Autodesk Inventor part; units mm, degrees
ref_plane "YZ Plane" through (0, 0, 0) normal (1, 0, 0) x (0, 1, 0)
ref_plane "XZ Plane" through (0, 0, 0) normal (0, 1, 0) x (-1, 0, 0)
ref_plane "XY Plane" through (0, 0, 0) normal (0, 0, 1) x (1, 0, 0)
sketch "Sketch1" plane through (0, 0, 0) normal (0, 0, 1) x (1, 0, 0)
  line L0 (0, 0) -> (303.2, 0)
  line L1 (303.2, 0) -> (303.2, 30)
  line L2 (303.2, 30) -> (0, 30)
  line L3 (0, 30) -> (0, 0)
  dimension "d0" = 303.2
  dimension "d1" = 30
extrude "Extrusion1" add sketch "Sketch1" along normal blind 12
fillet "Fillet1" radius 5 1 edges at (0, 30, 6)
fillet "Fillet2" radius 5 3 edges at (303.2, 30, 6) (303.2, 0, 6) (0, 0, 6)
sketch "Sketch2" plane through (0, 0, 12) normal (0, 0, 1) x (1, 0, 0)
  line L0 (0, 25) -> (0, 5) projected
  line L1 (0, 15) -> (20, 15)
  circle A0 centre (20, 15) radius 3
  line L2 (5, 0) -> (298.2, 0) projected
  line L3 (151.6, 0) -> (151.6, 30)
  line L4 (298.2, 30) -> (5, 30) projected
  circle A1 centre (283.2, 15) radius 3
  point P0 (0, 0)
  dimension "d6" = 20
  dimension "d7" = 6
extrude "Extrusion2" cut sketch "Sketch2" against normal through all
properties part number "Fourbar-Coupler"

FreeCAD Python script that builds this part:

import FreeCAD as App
import Part
import Sketcher
from FreeCAD import Vector
Q = App.Units.Quantity


def edges_at(feature, points):
    """Names of the edges that pass closest to the given points."""
    edges = feature.Shape.Edges
    near = lambda p: min(range(len(edges)), key=lambda i: edges[i].distToShape(Part.Vertex(*p))[0])
    return sorted({f"Edge{near(p) + 1}" for p in points})

doc = App.newDocument("Part")
params = doc.addObject("Spreadsheet::Sheet", "Params")
for row, (alias, value) in enumerate([
    ("sketch1_height", "30 mm"),
    ("sketch1_width", "303.2 mm"),
    ("pad1_length", "12 mm"),
    ("fillet_radius", "5 mm"),
    ("fillet2_radius", "5 mm"),
    ("sketch2_diameter", "6 mm"),
], start=1):
    params.set(f"A{row}", alias)
    params.set(f"B{row}", "=" + value)
    params.setAlias(f"B{row}", alias)

body = doc.addObject("PartDesign::Body", "Body")

# Sketch on XY plane
sketch1 = body.newObject("Sketcher::SketchObject", "Sketch")
sketch1.AttachmentSupport = (doc.getObject("XY_Plane"), [""])
sketch1.MapMode = "FlatFace"
sketch1.addGeometry([
    Part.LineSegment(Vector(0, 30, 0), Vector(0, 0, 0)),
    Part.LineSegment(Vector(0, 0, 0), Vector(303, 0, 0)),
    Part.LineSegment(Vector(303, 0, 0), Vector(303, 30, 0)),
    Part.LineSegment(Vector(303, 30, 0), Vector(0, 30, 0)),
], False)
sketch1.addConstraint([
    Sketcher.Constraint("Coincident", 0, 2, 1, 1),
    Sketcher.Constraint("Coincident", 1, 2, 2, 1),
    Sketcher.Constraint("Coincident", 2, 2, 3, 1),
    Sketcher.Constraint("Coincident", 3, 2, 0, 1),
    Sketcher.Constraint("Vertical", 0),
    Sketcher.Constraint("Horizontal", 1),
    Sketcher.Constraint("Vertical", 2),
    Sketcher.Constraint("Horizontal", 3),
    Sketcher.Constraint("Coincident", 0, 2, -1, 1),
    Sketcher.Constraint("DistanceY", 0, 2, 0, 1, Q("30 mm")),
    Sketcher.Constraint("DistanceX", 1, 1, 1, 2, Q("303.2 mm")),
])
sketch1.setExpression("Constraints[9]", "Params.sketch1_height")
sketch1.setExpression("Constraints[10]", "Params.sketch1_width")
pad1 = body.newObject("PartDesign::Pad", "Pad")
pad1.Profile = sketch1
pad1.setExpression("Length", "Params.pad1_length")
doc.recompute()

fillet = body.newObject("PartDesign::Fillet", "Fillet")
fillet.Base = (pad1, edges_at(pad1, [(0, 30, 6)]))
fillet.setExpression("Radius", "Params.fillet_radius")
doc.recompute()

fillet2 = body.newObject("PartDesign::Fillet", "Fillet001")
fillet2.Base = (fillet, edges_at(fillet, [(303.2, 30, 6), (303.2, 0, 6), (0, 0, 6)]))
fillet2.setExpression("Radius", "Params.fillet2_radius")

# Sketch on XY plane
sketch2 = body.newObject("Sketcher::SketchObject", "Sketch001")
sketch2.AttachmentSupport = (doc.getObject("XY_Plane"), [""])
sketch2.MapMode = "FlatFace"
sketch2.AttachmentOffset = App.Placement(Vector(0, 0, 12), App.Rotation())
sketch2.addGeometry([
    Part.Circle(Vector(20, 15, 0), Vector(0, 0, 1), 3),
    Part.Circle(Vector(283.2, 15, 0), Vector(0, 0, 1), 3),
], False)
sketch2.addConstraint([
    Sketcher.Constraint("Equal", 0, 1),
    Sketcher.Constraint("Horizontal", 0, 3, 1, 3),
    Sketcher.Constraint("Diameter", 0, Q("6 mm")),
    Sketcher.Constraint("DistanceX", -1, 1, 0, 3, Q("20 mm")),
    Sketcher.Constraint("DistanceY", -1, 1, 0, 3, Q("15 mm")),
    Sketcher.Constraint("DistanceX", -1, 1, 1, 3, Q("283.2 mm")),
])
sketch2.setExpression("Constraints[2]", "Params.sketch2_diameter")
pocket1 = body.newObject("PartDesign::Pocket", "Pocket")
pocket1.Profile = sketch2
pocket1.Type = "ThroughAll"

doc.recompute()
